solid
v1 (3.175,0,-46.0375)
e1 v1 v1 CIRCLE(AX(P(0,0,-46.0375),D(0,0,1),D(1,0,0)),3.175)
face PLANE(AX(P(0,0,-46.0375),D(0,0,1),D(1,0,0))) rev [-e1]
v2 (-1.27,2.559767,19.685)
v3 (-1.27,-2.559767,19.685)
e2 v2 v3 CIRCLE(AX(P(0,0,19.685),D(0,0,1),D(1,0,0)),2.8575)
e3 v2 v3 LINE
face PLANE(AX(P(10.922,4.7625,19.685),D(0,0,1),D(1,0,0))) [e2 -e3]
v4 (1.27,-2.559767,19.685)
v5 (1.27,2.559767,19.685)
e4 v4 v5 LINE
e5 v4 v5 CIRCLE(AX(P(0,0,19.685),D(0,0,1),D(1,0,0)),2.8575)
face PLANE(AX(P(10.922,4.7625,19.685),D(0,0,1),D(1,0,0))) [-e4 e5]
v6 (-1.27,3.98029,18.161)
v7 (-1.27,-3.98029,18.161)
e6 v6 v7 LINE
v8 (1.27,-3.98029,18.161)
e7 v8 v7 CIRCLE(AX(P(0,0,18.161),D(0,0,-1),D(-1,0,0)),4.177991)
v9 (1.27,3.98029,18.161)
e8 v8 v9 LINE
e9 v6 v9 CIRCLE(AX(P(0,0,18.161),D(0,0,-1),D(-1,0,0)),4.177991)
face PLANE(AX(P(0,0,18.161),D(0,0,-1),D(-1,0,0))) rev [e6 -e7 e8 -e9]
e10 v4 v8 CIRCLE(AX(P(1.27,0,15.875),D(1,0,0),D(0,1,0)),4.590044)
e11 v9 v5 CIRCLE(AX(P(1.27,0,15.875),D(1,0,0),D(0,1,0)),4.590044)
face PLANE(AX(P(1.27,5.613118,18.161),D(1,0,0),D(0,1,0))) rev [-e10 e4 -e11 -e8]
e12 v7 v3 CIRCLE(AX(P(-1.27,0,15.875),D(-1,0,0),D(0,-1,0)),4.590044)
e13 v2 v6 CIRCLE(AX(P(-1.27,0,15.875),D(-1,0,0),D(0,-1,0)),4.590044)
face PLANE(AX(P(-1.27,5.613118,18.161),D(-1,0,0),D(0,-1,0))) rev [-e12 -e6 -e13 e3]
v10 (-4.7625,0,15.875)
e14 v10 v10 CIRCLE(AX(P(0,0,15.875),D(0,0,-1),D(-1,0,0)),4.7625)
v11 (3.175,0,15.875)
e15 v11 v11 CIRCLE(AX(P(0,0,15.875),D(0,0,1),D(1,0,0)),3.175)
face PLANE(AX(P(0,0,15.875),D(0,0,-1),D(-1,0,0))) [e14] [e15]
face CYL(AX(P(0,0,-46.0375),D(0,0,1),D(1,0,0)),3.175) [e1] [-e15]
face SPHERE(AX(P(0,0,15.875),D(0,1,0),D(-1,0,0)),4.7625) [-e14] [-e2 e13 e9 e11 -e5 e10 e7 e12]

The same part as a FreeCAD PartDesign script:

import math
import FreeCAD as App
import Part
import Sketcher

V = App.Vector
Q = App.Units.Quantity


def add_polygon(sketch, points):
    """Adds a closed chain of lines whose ends are joined by coincident constraints."""
    first, n = sketch.GeometryCount, len(points)
    for a, b in zip(points, points[1:] + points[:1]):
        sketch.addGeometry(Part.LineSegment(App.Vector(*a, 0), App.Vector(*b, 0)), False)
    for i in range(n):
        sketch.addConstraint(Sketcher.Constraint("Coincident", first + i, 2, first + (i + 1) % n, 1))

doc = App.newDocument("Part")
body = doc.addObject("PartDesign::Body", "Body")

sketch1 = doc.addObject("Sketcher::SketchObject", "Sketch")
body.addObject(sketch1)
sketch1.AttachmentSupport = (doc.XY_Plane, [""])
sketch1.MapMode = "FlatFace"
sketch1.addGeometry(Part.Circle(V(0, 0, 0), V(0, 0, 1), 3.175), False)
sketch1.addConstraint([
    Sketcher.Constraint("Coincident", 0, 3, -1, 1),
    Sketcher.Constraint("Diameter", 0, Q("0.25 in")),
])
pad1 = doc.addObject("PartDesign::Pad", "Pad")
body.addObject(pad1)
pad1.Profile = sketch1
pad1.Type = "TwoLengths"
pad1.Length = Q("0.625 in")
pad1.Length2 = Q("1.8125 in")

sketch2 = doc.addObject("Sketcher::SketchObject", "Sketch001")
body.addObject(sketch2)
sketch2.AttachmentSupport = (doc.XY_Plane, [""])
sketch2.MapMode = "FlatFace"
sketch2.AttachmentOffset = App.Placement(V(0, 0, 0.625 * 25.4), App.Rotation())
sketch2.addGeometry([
    Part.LineSegment(V(0, 4.7625, 0), V(0, -4.7625, 0)),
    Part.ArcOfCircle(Part.Circle(V(0, 0, 0), V(0, 0, 1), 4.7625), math.radians(-90), math.radians(90)),
], False)
sketch2.addConstraint([
    Sketcher.Constraint("Coincident", 0, 1, 1, 2),
    Sketcher.Constraint("Coincident", 1, 1, 0, 2),
    Sketcher.Constraint("Vertical", 0),
    Sketcher.Constraint("Coincident", 1, 3, -1, 1),
    Sketcher.Constraint("PointOnObject", 0, 1, -2),
    Sketcher.Constraint("Radius", 1, Q("0.1875 in")),
])
revolution = doc.addObject("PartDesign::Revolution", "Revolution")
body.addObject(revolution)
revolution.Profile = sketch2
revolution.ReferenceAxis = (sketch2, ["V_Axis"])
revolution.Angle = 180
revolution.Reversed = True

sketch3 = doc.addObject("Sketcher::SketchObject", "Sketch002")
body.addObject(sketch3)
sketch3.AttachmentSupport = (doc.YZ_Plane, [""])
sketch3.MapMode = "FlatFace"
sketch3.AttachmentOffset = App.Placement(V(0, 0, 0.1 * 25.4), App.Rotation())
add_polygon(sketch3, [(4.7625, 22.225), (-7.9375, 22.225), (-7.9375, 19.685), (4.7625, 19.685)])
sketch3.addConstraint([
    Sketcher.Constraint("Horizontal", 0),
    Sketcher.Constraint("Vertical", 1),
    Sketcher.Constraint("Horizontal", 2),
    Sketcher.Constraint("Vertical", 3),
    Sketcher.Constraint("DistanceX", 0, 2, 0, 1, Q("0.5 in")),
    Sketcher.Constraint("DistanceY", 1, 2, 1, 1, Q("0.1 in")),
    Sketcher.Constraint("DistanceX", 0, 2, -1, 1, Q("0.3125 in")),
    Sketcher.Constraint("DistanceY", -1, 1, 0, 2, Q("0.875 in")),
])
pocket1 = doc.addObject("PartDesign::Pocket", "Pocket")
body.addObject(pocket1)
pocket1.Profile = sketch3
pocket1.Type = "ThroughAll"
pocket1.Midplane = True

sketch4 = doc.addObject("Sketcher::SketchObject", "Sketch003")
body.addObject(sketch4)
sketch4.AttachmentSupport = (doc.XY_Plane, [""])
sketch4.MapMode = "FlatFace"
sketch4.AttachmentOffset = App.Placement(V(0, 0, 0.775 * 25.4), App.Rotation())
add_polygon(sketch4, [(-1.27, 5.613118), (-1.27, -7.198877), (1.27, -7.198877), (1.27, 5.613118)])
sketch4.addConstraint([
    Sketcher.Constraint("Vertical", 0),
    Sketcher.Constraint("Horizontal", 1),
    Sketcher.Constraint("Vertical", 2),
    Sketcher.Constraint("Horizontal", 3),
    Sketcher.Constraint("DistanceX", 1, 1, 1, 2, Q("0.1 in")),
    Sketcher.Constraint("DistanceX", 0, 2, -1, 1, Q("0.05 in")),
    Sketcher.Constraint("DistanceY", 0, 2, 0, 1, 12.811995),
    Sketcher.Constraint("DistanceY", 0, 2, -1, 1, 7.198877),
])
pocket2 = doc.addObject("PartDesign::Pocket", "Pocket001")
body.addObject(pocket2)
pocket2.Profile = sketch4
pocket2.Length = Q("0.06 in")

doc.recompute()
